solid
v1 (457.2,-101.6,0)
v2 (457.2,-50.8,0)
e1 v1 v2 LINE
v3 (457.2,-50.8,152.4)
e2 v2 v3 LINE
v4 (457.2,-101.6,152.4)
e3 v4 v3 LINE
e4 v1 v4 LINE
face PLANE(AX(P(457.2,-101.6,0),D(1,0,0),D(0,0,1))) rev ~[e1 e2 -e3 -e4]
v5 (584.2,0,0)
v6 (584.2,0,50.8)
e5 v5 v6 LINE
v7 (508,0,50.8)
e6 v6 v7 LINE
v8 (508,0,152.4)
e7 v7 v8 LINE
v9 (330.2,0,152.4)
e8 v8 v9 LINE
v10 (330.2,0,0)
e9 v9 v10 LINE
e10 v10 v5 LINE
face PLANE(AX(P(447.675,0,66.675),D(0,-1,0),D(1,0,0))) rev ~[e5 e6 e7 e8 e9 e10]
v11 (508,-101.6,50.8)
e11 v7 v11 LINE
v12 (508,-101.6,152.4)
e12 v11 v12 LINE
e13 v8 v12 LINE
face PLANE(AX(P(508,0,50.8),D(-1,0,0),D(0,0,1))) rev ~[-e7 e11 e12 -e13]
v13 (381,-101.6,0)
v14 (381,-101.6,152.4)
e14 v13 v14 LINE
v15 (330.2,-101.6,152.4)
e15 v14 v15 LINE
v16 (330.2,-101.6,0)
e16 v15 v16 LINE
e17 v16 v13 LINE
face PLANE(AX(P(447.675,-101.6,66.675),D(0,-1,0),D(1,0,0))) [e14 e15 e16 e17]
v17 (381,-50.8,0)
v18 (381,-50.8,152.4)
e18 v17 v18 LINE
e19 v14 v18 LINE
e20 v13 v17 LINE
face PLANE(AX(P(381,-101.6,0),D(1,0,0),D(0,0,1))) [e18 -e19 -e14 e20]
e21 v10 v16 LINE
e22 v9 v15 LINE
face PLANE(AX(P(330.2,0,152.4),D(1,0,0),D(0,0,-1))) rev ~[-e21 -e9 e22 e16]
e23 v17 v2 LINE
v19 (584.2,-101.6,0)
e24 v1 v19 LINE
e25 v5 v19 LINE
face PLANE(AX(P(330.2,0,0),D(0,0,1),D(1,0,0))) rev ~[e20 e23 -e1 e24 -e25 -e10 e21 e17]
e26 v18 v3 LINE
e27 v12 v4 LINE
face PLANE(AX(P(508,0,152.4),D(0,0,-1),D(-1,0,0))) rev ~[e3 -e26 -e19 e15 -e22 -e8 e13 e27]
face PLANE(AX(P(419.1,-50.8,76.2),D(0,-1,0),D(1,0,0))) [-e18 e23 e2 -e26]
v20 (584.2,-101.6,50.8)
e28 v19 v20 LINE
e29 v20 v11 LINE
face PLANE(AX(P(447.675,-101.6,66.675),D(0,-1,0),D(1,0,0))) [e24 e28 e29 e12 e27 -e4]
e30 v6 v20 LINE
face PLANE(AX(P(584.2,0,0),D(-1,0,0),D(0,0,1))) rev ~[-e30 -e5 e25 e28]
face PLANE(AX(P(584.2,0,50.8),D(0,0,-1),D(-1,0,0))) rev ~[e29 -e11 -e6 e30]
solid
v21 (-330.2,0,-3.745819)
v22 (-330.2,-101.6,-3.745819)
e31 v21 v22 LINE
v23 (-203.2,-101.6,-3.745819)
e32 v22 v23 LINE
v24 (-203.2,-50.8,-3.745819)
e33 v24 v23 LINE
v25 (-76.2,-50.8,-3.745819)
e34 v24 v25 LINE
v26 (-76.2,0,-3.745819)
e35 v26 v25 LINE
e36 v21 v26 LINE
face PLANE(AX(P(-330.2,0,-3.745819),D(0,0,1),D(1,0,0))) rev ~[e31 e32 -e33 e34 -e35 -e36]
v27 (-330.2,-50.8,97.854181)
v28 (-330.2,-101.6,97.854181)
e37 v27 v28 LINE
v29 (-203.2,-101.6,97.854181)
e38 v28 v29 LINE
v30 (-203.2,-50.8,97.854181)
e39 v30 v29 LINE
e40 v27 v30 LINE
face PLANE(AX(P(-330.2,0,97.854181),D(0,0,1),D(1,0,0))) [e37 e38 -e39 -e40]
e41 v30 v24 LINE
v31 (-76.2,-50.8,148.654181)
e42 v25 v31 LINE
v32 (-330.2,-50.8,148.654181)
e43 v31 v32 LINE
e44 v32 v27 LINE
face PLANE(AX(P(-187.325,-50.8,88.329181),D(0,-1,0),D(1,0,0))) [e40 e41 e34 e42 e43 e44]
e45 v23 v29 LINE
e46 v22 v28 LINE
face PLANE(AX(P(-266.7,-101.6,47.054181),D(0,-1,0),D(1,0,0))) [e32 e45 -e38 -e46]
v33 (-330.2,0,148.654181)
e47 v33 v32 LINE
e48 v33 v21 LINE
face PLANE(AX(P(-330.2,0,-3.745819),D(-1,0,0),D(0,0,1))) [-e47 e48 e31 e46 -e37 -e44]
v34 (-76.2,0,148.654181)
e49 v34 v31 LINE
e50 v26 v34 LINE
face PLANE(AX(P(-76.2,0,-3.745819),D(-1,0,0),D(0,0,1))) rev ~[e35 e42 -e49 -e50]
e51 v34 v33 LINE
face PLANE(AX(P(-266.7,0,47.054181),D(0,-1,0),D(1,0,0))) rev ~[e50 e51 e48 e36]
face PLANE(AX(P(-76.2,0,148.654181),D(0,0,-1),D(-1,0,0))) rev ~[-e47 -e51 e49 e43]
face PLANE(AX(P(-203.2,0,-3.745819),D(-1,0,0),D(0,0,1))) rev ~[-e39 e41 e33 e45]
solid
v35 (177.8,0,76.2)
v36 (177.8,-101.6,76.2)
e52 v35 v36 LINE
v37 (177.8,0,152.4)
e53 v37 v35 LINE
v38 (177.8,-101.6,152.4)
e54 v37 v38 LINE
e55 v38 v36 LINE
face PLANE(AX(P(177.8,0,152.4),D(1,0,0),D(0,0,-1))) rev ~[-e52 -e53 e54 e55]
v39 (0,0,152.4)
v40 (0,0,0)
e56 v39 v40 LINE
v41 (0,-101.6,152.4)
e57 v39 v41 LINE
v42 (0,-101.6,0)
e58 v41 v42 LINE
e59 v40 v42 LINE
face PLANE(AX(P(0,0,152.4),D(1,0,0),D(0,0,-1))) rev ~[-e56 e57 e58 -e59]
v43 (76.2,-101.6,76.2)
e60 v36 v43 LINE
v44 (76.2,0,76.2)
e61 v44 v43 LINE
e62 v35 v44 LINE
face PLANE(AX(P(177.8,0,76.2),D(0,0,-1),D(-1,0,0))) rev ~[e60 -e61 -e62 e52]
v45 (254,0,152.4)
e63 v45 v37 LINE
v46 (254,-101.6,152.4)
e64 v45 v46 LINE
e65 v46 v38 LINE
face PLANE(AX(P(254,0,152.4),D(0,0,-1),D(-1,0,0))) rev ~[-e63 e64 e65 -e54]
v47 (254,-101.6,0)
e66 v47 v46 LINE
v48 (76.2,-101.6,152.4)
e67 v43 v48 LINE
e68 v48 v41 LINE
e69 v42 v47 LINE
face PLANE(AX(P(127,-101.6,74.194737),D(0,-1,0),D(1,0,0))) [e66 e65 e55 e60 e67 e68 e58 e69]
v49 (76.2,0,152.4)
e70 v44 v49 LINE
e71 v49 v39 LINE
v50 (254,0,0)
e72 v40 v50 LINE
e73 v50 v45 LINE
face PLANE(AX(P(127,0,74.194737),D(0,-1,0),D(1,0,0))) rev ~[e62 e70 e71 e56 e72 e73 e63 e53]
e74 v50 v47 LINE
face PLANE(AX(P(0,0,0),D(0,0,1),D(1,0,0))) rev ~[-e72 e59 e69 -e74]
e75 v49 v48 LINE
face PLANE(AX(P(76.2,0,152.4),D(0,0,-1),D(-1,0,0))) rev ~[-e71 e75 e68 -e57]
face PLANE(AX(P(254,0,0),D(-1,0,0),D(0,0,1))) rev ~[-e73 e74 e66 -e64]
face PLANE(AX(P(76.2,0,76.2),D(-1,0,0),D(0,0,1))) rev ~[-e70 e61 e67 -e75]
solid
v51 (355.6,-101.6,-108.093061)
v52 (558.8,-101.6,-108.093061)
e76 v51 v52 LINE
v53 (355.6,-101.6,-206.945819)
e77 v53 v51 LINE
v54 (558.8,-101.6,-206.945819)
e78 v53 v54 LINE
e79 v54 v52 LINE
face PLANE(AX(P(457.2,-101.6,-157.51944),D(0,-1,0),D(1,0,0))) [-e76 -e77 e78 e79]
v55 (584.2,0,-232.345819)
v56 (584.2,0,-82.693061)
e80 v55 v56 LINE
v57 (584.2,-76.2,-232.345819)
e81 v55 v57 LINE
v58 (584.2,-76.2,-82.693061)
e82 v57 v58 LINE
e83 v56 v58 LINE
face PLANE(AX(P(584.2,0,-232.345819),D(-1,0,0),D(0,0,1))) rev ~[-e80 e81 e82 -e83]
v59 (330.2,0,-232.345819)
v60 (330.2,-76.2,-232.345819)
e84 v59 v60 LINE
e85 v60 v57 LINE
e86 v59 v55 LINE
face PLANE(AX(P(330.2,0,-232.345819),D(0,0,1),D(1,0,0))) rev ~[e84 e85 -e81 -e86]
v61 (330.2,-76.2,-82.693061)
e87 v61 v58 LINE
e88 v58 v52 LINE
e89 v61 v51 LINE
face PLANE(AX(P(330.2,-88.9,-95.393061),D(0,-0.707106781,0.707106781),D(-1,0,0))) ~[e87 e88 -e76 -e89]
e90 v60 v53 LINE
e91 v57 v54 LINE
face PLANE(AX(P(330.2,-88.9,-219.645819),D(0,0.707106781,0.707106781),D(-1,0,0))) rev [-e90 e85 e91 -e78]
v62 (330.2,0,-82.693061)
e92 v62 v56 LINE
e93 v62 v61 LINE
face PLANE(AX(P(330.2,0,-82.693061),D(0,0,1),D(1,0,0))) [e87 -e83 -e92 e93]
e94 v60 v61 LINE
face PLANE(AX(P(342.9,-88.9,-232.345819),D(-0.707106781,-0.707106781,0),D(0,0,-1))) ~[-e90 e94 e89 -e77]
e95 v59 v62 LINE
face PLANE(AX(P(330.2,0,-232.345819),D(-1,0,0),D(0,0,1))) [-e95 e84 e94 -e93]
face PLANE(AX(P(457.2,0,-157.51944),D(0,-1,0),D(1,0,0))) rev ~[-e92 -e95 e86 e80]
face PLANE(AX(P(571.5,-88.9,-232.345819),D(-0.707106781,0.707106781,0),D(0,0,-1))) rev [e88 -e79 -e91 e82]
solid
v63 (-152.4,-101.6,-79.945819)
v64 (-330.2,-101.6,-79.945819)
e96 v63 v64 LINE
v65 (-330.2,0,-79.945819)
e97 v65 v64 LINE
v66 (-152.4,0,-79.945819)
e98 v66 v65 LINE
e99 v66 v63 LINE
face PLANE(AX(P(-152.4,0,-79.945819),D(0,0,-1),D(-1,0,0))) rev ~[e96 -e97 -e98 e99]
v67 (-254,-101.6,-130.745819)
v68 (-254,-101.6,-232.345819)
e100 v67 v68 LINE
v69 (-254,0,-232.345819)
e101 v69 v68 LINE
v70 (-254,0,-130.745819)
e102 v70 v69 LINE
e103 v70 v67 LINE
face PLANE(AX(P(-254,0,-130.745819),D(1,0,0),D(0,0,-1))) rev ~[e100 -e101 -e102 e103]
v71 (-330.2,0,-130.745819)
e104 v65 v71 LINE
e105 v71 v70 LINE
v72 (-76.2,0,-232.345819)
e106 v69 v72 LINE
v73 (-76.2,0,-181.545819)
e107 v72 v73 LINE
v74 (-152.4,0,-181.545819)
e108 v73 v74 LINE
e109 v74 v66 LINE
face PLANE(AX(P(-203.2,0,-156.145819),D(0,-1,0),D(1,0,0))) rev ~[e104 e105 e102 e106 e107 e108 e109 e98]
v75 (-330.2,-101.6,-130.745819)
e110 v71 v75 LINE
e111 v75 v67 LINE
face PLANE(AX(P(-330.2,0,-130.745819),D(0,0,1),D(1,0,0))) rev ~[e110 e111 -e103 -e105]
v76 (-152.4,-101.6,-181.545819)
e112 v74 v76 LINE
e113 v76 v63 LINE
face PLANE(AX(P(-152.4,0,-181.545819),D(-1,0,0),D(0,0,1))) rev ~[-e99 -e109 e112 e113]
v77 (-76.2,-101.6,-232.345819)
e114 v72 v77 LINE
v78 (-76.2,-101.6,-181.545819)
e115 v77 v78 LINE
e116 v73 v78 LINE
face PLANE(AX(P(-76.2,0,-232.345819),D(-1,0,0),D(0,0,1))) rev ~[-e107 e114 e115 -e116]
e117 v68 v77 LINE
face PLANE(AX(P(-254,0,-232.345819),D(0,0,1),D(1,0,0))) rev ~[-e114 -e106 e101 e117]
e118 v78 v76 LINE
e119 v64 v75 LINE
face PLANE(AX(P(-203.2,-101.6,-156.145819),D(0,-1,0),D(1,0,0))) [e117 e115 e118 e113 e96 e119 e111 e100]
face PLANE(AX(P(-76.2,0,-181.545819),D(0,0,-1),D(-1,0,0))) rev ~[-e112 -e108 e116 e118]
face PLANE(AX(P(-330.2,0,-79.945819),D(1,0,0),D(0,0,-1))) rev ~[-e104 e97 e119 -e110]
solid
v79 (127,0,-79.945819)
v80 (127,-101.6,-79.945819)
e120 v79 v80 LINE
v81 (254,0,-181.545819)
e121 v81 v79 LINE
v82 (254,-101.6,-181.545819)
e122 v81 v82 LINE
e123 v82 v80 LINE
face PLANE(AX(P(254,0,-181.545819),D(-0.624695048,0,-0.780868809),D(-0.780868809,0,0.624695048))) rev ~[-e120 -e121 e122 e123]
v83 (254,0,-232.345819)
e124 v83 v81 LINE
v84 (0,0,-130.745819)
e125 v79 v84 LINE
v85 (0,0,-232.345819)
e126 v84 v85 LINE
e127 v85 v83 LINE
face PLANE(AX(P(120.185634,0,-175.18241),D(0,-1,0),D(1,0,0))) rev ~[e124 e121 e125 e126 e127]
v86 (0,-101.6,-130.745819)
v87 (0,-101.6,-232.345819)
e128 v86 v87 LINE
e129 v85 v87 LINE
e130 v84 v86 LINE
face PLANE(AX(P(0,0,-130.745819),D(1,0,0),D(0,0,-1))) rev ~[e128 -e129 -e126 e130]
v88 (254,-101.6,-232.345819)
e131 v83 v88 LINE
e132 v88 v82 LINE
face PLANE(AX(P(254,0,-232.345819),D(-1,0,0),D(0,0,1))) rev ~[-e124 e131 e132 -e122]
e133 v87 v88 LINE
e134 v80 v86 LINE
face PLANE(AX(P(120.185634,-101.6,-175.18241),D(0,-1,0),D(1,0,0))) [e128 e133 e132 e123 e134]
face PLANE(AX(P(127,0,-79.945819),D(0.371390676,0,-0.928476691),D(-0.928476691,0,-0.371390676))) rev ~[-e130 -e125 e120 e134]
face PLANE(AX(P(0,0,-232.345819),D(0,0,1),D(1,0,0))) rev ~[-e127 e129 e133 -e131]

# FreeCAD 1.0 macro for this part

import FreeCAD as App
import Part
import Sketcher
Q = App.Units.Quantity


def edges_at(feature, points):
    """Names of the edges that pass closest to the given points."""
    edges = feature.Shape.Edges
    near = lambda p: min(range(len(edges)), key=lambda i: edges[i].distToShape(Part.Vertex(*p))[0])
    return sorted({f"Edge{near(p) + 1}" for p in points})


def add_polygon(sketch, points):
    """Adds a closed chain of lines whose ends are joined by coincident constraints."""
    first, n = sketch.GeometryCount, len(points)
    for a, b in zip(points, points[1:] + points[:1]):
        sketch.addGeometry(Part.LineSegment(App.Vector(*a, 0), App.Vector(*b, 0)), False)
    for i in range(n):
        sketch.addConstraint(Sketcher.Constraint("Coincident", first + i, 2, first + (i + 1) % n, 1))

doc = App.newDocument("Part")
body = doc.addObject("PartDesign::Body", "Body")

sketch1 = body.newObject("Sketcher::SketchObject", "Sketch")
sketch1.AttachmentSupport = (doc.getObject("XZ_Plane"), [""])
sketch1.MapMode = "FlatFace"
add_polygon(sketch1, [(0, 152), (0, 0), (254, 0), (254, 152), (178, 152), (178, 76), (76, 76), (76, 152)])
sketch1.addConstraint([
    Sketcher.Constraint("Vertical", 0),
    Sketcher.Constraint("Horizontal", 1),
    Sketcher.Constraint("Vertical", 2),
    Sketcher.Constraint("Horizontal", 3),
    Sketcher.Constraint("Vertical", 4),
    Sketcher.Constraint("Horizontal", 5),
    Sketcher.Constraint("Vertical", 6),
    Sketcher.Constraint("Horizontal", 7),
    Sketcher.Constraint("Coincident", 0, 2, -1, 1),
    Sketcher.Constraint("Horizontal", 3, 2, 6, 2),
    Sketcher.Constraint("Equal", 3, 7),
    Sketcher.Constraint("Equal", 7, 4),
    Sketcher.Constraint("DistanceX", 1, 1, 1, 2, Q("10 in")),
    Sketcher.Constraint("DistanceX", 3, 2, 3, 1, Q("3 in")),
    Sketcher.Constraint("DistanceY", 0, 2, 0, 1, Q("6 in")),
])
pad1 = body.newObject("PartDesign::Pad", "Pad")
pad1.Profile = sketch1
pad1.Length = Q("4 in")
body2 = doc.addObject("PartDesign::Body", "Body001")

sketch2 = body2.newObject("Sketcher::SketchObject", "Sketch001")
sketch2.AttachmentSupport = (doc.getObject("XZ_Plane001"), [""])
sketch2.MapMode = "FlatFace"
add_polygon(sketch2, [(-203, -4), (-76, -4), (-76, 149), (-330, 149), (-330, 98), (-203, 98)])
sketch2.addConstraint([
    Sketcher.Constraint("Horizontal", 0),
    Sketcher.Constraint("Vertical", 1),
    Sketcher.Constraint("Horizontal", 2),
    Sketcher.Constraint("Vertical", 3),
    Sketcher.Constraint("Horizontal", 4),
    Sketcher.Constraint("Vertical", 5),
    Sketcher.Constraint("Equal", 0, 4),
    Sketcher.Constraint("DistanceX", 0, 1, 0, 2, Q("5 in")),
    Sketcher.Constraint("DistanceY", 1, 1, 1, 2, Q("6 in")),
    Sketcher.Constraint("DistanceY", 3, 2, 3, 1, Q("2 in")),
    Sketcher.Constraint("DistanceX", 0, 2, -1, 1, Q("3 in")),
    Sketcher.Constraint("DistanceY", 0, 2, -1, 1, Q("3.745819 mm")),
])
pad2 = body2.newObject("PartDesign::Pad", "Pad001")
pad2.Profile = sketch2
pad2.Length = Q("2 in")

sketch3 = body2.newObject("Sketcher::SketchObject", "Sketch002")
sketch3.AttachmentSupport = (doc.getObject("XZ_Plane001"), [""])
sketch3.MapMode = "FlatFace"
add_polygon(sketch3, [(-330, 98), (-330, -4), (-203, -4), (-203, 98)])
sketch3.addConstraint([
    Sketcher.Constraint("Vertical", 0),
    Sketcher.Constraint("Horizontal", 1),
    Sketcher.Constraint("Vertical", 2),
    Sketcher.Constraint("Horizontal", 3),
    Sketcher.Constraint("DistanceX", 1, 1, 1, 2, Q("5 in")),
    Sketcher.Constraint("DistanceY", 0, 2, 0, 1, Q("4 in")),
    Sketcher.Constraint("DistanceX", 0, 2, -1, 1, Q("13 in")),
    Sketcher.Constraint("DistanceY", 0, 2, -1, 1, Q("3.745819 mm")),
])
pad3 = body2.newObject("PartDesign::Pad", "Pad002")
pad3.Profile = sketch3
pad3.Length = Q("4 in")
body3 = doc.addObject("PartDesign::Body", "Body002")

sketch4 = body3.newObject("Sketcher::SketchObject", "Sketch003")
sketch4.AttachmentSupport = (doc.getObject("XZ_Plane002"), [""])
sketch4.MapMode = "FlatFace"
add_polygon(sketch4, [(508, 152), (330, 152), (330, 0), (584, 0), (584, 51), (508, 51)])
sketch4.addConstraint([
    Sketcher.Constraint("Horizontal", 0),
    Sketcher.Constraint("Vertical", 1),
    Sketcher.Constraint("Horizontal", 2),
    Sketcher.Constraint("Vertical", 3),
    Sketcher.Constraint("Horizontal", 4),
    Sketcher.Constraint("Vertical", 5),
    Sketcher.Constraint("PointOnObject", 1, 2, -1),
    Sketcher.Constraint("DistanceX", 0, 2, 0, 1, Q("7 in")),
    Sketcher.Constraint("DistanceX", 2, 1, 2, 2, Q("10 in")),
    Sketcher.Constraint("DistanceY", 1, 2, 1, 1, Q("6 in")),
    Sketcher.Constraint("DistanceY", 3, 1, 3, 2, Q("2 in")),
    Sketcher.Constraint("DistanceX", -1, 1, 0, 2, Q("13 in")),
])
pad4 = body3.newObject("PartDesign::Pad", "Pad003")
pad4.Profile = sketch4
pad4.Length = Q("4 in")

sketch5 = body3.newObject("Sketcher::SketchObject", "Sketch004")
sketch5.AttachmentSupport = (doc.getObject("XZ_Plane002"), [""])
sketch5.MapMode = "FlatFace"
sketch5.AttachmentOffset = App.Placement(App.Vector(0, 0, 4 * 25.4), App.Rotation())
add_polygon(sketch5, [(381, 152), (381, 0), (457, 0), (457, 152)])
sketch5.addConstraint([
    Sketcher.Constraint("Vertical", 0),
    Sketcher.Constraint("Horizontal", 1),
    Sketcher.Constraint("Vertical", 2),
    Sketcher.Constraint("Horizontal", 3),
    Sketcher.Constraint("PointOnObject", 0, 2, -1),
    Sketcher.Constraint("DistanceX", 1, 1, 1, 2, Q("3 in")),
    Sketcher.Constraint("DistanceY", 0, 2, 0, 1, Q("6 in")),
    Sketcher.Constraint("DistanceX", -1, 1, 0, 2, Q("15 in")),
])
pocket1 = body3.newObject("PartDesign::Pocket", "Pocket")
pocket1.Profile = sketch5
pocket1.Length = Q("2 in")
body4 = doc.addObject("PartDesign::Body", "Body003")

sketch6 = body4.newObject("Sketcher::SketchObject", "Sketch005")
sketch6.AttachmentSupport = (doc.getObject("XZ_Plane003"), [""])
sketch6.MapMode = "FlatFace"
add_polygon(sketch6, [(-152, -80), (-330, -80), (-330, -131), (-254, -131), (-254, -232), (-76, -232), (-76, -182), (-152, -182)])
sketch6.addConstraint([
    Sketcher.Constraint("Horizontal", 0),
    Sketcher.Constraint("Vertical", 1),
    Sketcher.Constraint("Horizontal", 2),
    Sketcher.Constraint("Vertical", 3),
    Sketcher.Constraint("Horizontal", 4),
    Sketcher.Constraint("Vertical", 5),
    Sketcher.Constraint("Horizontal", 6),
    Sketcher.Constraint("Vertical", 7),
    Sketcher.Constraint("Equal", 0, 4),
    Sketcher.Constraint("Equal", 1, 5),
    Sketcher.Constraint("DistanceX", 0, 2, 0, 1, Q("7 in")),
    Sketcher.Constraint("DistanceX", 2, 1, 2, 2, Q("3 in")),
    Sketcher.Constraint("DistanceY", 1, 2, 1, 1, Q("2 in")),
    Sketcher.Constraint("DistanceY", 3, 2, 3, 1, Q("4 in")),
    Sketcher.Constraint("DistanceX", 0, 2, -1, 1, Q("13 in")),
    Sketcher.Constraint("DistanceY", 0, 2, -1, 1, Q("79.945819 mm")),
])
pad5 = body4.newObject("PartDesign::Pad", "Pad004")
pad5.Profile = sketch6
pad5.Length = Q("4 in")
body5 = doc.addObject("PartDesign::Body", "Body004")

sketch7 = body5.newObject("Sketcher::SketchObject", "Sketch006")
sketch7.AttachmentSupport = (doc.getObject("XZ_Plane004"), [""])
sketch7.MapMode = "FlatFace"
add_polygon(sketch7, [(254, -182), (127, -80), (0, -131), (0, -232), (254, -232)])
sketch7.addConstraint([
    Sketcher.Constraint("Vertical", 2),
    Sketcher.Constraint("Horizontal", 3),
    Sketcher.Constraint("Vertical", 4),
    Sketcher.Constraint("PointOnObject", 1, 2, -2),
    Sketcher.Constraint("DistanceX", 3, 1, 3, 2, Q("10 in")),
    Sketcher.Constraint("DistanceY", 2, 2, 2, 1, Q("4 in")),
    Sketcher.Constraint("DistanceY", 4, 1, 4, 2, Q("2 in")),
    Sketcher.Constraint("DistanceX", -1, 1, 0, 2, Q("5 in")),
    Sketcher.Constraint("DistanceY", 1, 2, 0, 2, Q("2 in")),
    Sketcher.Constraint("DistanceY", 0, 2, -1, 1, Q("79.945819 mm")),
])
pad6 = body5.newObject("PartDesign::Pad", "Pad005")
pad6.Profile = sketch7
pad6.Length = Q("4 in")
body6 = doc.addObject("PartDesign::Body", "Body005")

sketch8 = body6.newObject("Sketcher::SketchObject", "Sketch007")
sketch8.AttachmentSupport = (doc.getObject("XZ_Plane005"), [""])
sketch8.MapMode = "FlatFace"
add_polygon(sketch8, [(330, -83), (330, -232), (584, -232), (584, -83)])
sketch8.addConstraint([
    Sketcher.Constraint("Vertical", 0),
    Sketcher.Constraint("Horizontal", 1),
    Sketcher.Constraint("Vertical", 2),
    Sketcher.Constraint("Horizontal", 3),
    Sketcher.Constraint("DistanceX", 1, 1, 1, 2, Q("10 in")),
    Sketcher.Constraint("DistanceX", -1, 1, 0, 2, Q("13 in")),
    Sketcher.Constraint("DistanceY", 0, 2, 0, 1, Q("149.652759 mm")),
    Sketcher.Constraint("DistanceY", 0, 2, -1, 1, Q("232.345819 mm")),
])
pad7 = body6.newObject("PartDesign::Pad", "Pad006")
pad7.Profile = sketch8
pad7.Length = Q("4 in")
doc.recompute()

chamfer = body6.newObject("PartDesign::Chamfer", "Chamfer")
chamfer.Base = (pad7, edges_at(pad7, [
    (330.2, -101.6, -157.519),
    (457.2, -101.6, -232.346),
    (584.2, -101.6, -157.519),
    (457.2, -101.6, -82.693),
]))
chamfer.Size = Q("1 in")

doc.recompute()
